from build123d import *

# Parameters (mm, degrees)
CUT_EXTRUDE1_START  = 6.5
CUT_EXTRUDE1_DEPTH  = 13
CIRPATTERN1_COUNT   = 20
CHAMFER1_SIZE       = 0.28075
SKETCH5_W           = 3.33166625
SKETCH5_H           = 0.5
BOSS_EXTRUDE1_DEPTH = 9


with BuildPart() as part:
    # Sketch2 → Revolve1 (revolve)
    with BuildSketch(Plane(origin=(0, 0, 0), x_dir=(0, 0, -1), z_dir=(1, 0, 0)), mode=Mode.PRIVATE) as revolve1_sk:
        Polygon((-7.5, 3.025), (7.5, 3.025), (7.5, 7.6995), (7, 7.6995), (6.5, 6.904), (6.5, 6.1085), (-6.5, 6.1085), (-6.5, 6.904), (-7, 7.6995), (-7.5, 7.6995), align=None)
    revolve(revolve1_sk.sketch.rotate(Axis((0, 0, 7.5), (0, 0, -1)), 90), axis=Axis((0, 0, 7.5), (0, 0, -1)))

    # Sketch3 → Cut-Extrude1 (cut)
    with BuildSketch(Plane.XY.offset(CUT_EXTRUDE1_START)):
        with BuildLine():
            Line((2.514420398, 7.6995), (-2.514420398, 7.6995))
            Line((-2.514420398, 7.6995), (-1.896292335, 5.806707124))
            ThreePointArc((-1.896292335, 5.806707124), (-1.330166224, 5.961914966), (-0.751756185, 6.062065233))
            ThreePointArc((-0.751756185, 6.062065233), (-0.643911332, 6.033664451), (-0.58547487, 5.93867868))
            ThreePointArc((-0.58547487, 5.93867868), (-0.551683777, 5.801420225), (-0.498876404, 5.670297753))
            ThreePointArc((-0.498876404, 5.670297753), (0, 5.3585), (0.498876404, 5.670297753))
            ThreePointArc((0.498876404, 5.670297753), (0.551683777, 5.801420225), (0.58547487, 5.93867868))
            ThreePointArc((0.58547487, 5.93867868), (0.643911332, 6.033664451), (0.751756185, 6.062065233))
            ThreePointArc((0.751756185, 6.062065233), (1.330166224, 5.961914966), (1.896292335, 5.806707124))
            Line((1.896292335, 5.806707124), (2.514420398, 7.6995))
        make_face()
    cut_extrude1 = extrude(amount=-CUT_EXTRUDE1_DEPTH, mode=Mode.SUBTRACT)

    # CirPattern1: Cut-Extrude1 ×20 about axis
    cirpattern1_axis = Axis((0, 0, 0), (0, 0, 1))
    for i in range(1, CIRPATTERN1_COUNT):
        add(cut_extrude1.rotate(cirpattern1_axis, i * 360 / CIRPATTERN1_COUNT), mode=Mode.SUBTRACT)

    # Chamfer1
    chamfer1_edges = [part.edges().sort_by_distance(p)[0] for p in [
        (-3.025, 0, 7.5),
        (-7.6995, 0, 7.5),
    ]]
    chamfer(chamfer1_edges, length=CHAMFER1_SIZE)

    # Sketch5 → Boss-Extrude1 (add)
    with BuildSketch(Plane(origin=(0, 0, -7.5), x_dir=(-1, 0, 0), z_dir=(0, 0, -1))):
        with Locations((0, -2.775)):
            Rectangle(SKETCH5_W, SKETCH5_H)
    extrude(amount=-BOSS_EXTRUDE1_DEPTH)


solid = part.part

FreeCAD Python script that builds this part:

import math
import FreeCAD as App
import Part
import Sketcher
from FreeCAD import Vector


def edges_at(feature, points):
    """Names of the edges that pass closest to the given points."""
    edges = feature.Shape.Edges
    near = lambda p: min(range(len(edges)), key=lambda i: edges[i].distToShape(Part.Vertex(*p))[0])
    return sorted({f"Edge{near(p) + 1}" for p in points})


def add_polygon(sketch, points):
    """Adds a closed chain of lines whose ends are joined by coincident constraints."""
    first, n = sketch.GeometryCount, len(points)
    for a, b in zip(points, points[1:] + points[:1]):
        sketch.addGeometry(Part.LineSegment(App.Vector(*a, 0), App.Vector(*b, 0)), False)
    for i in range(n):
        sketch.addConstraint(Sketcher.Constraint("Coincident", first + i, 2, first + (i + 1) % n, 1))

doc = App.newDocument("Part")
body = doc.addObject("PartDesign::Body", "Body")

# Sketch on YZ plane
sketch1 = body.newObject("Sketcher::SketchObject", "Sketch")
sketch1.AttachmentSupport = (doc.getObject("YZ_Plane"), [""])
sketch1.MapMode = "FlatFace"
add_polygon(sketch1, [(3.025, 7.5), (3.025, -7.5), (7.6995, -7.5), (7.6995, -7), (6.904, -6.5), (6.1085, -6.5), (6.1085, 6.5), (6.904, 6.5), (7.6995, 7), (7.6995, 7.5)])  # lines 0-9
sketch1.addConstraint(Sketcher.Constraint("Vertical", 0))
sketch1.addConstraint(Sketcher.Constraint("Horizontal", 1))
sketch1.addConstraint(Sketcher.Constraint("Vertical", 2))
sketch1.addConstraint(Sketcher.Constraint("Horizontal", 4))
sketch1.addConstraint(Sketcher.Constraint("Vertical", 5))
sketch1.addConstraint(Sketcher.Constraint("Horizontal", 6))
sketch1.addConstraint(Sketcher.Constraint("Vertical", 8))
sketch1.addConstraint(Sketcher.Constraint("Horizontal", 9))
sketch1.addConstraint(Sketcher.Constraint("Symmetric", 3, 2, 6, 2, -1))
sketch1.addConstraint(Sketcher.Constraint("Symmetric", 2, 2, 7, 2, -1))
sketch1.addConstraint(Sketcher.Constraint("Equal", 2, 8))
sketch1.addConstraint(Sketcher.Constraint("DistanceY", 0, 2, 0, 1, 15.0))
sketch1.addConstraint(Sketcher.Constraint("DistanceY", 5, 1, 5, 2, 13.0))
sketch1.addConstraint(Sketcher.Constraint("DistanceY", 2, 1, 2, 2, 0.5))
sketch1.addConstraint(Sketcher.Constraint("DistanceX", 1, 1, 1, 2, 4.6745))
sketch1.addConstraint(Sketcher.Constraint("DistanceX", 4, 2, 4, 1, 0.7955))
sketch1.addConstraint(Sketcher.Constraint("DistanceX", -1, 1, 0, 2, 3.025))
sketch1.addConstraint(Sketcher.Constraint("DistanceX", -1, 1, 3, 2, 6.904))
revolution = body.newObject("PartDesign::Revolution", "Revolution")
revolution.Profile = sketch1
revolution.ReferenceAxis = (sketch1, ["V_Axis"])
revolution.Angle = 360

# Sketch on XY plane
sketch2 = body.newObject("Sketcher::SketchObject", "Sketch001")
sketch2.AttachmentSupport = (doc.getObject("XY_Plane"), [""])
sketch2.MapMode = "FlatFace"
sketch2.AttachmentOffset = App.Placement(Vector(0, 0, 6.5), App.Rotation())
sketch2.addGeometry(Part.LineSegment(Vector(2.51442, 7.6995, 0), Vector(-2.51442, 7.6995, 0)), False)
sketch2.addGeometry(Part.LineSegment(Vector(-2.51442, 7.6995, 0), Vector(-1.896292, 5.806707, 0)), False)
sketch2.addGeometry(Part.ArcOfCircle(Part.Circle(Vector(0, 0, 0), Vector(0, 0, 1), 6.1085), math.radians(97.069155), math.radians(108.085449)), False)
sketch2.addGeometry(Part.ArcOfCircle(Part.Circle(Vector(-0.733296, 5.913205, 0), Vector(0, 0, 1), 0.15), math.radians(9.77743), math.radians(97.069154)), False)
sketch2.addGeometry(Part.ArcOfCircle(Part.Circle(Vector(0.4, 6.1085, 0), Vector(0, 0, 1), 1), math.radians(-170.22257), math.radians(-154.010766)), False)
sketch2.addGeometry(Part.ArcOfCircle(Part.Circle(Vector(0, 5.9135, 0), Vector(0, 0, 1), 0.555), math.radians(-154.010767), math.radians(-25.989233)), False)
sketch2.addGeometry(Part.ArcOfCircle(Part.Circle(Vector(-0.4, 6.1085, 0), Vector(0, 0, 1), 1), math.radians(-25.989234), math.radians(-9.77743)), False)
sketch2.addGeometry(Part.ArcOfCircle(Part.Circle(Vector(0.733296, 5.913205, 0), Vector(0, 0, 1), 0.15), math.radians(82.930846), math.radians(170.22257)), False)
sketch2.addGeometry(Part.ArcOfCircle(Part.Circle(Vector(0, 0, 0), Vector(0, 0, 1), 6.1085), math.radians(71.914551), math.radians(82.930845)), False)
sketch2.addGeometry(Part.LineSegment(Vector(1.896292, 5.806707, 0), Vector(2.51442, 7.6995, 0)), False)
sketch2.addConstraint(Sketcher.Constraint("Coincident", 0, 2, 1, 1))
sketch2.addConstraint(Sketcher.Constraint("Coincident", 1, 2, 2, 2))
sketch2.addConstraint(Sketcher.Constraint("Tangent", 2, 1, 3, 2))
sketch2.addConstraint(Sketcher.Constraint("Tangent", 3, 1, 4, 1))
sketch2.addConstraint(Sketcher.Constraint("Tangent", 4, 2, 5, 1))
sketch2.addConstraint(Sketcher.Constraint("Tangent", 5, 2, 6, 1))
sketch2.addConstraint(Sketcher.Constraint("Tangent", 6, 2, 7, 2))
sketch2.addConstraint(Sketcher.Constraint("Tangent", 7, 1, 8, 2))
sketch2.addConstraint(Sketcher.Constraint("Coincident", 8, 1, 9, 1))
sketch2.addConstraint(Sketcher.Constraint("Coincident", 9, 2, 0, 1))
sketch2.addConstraint(Sketcher.Constraint("Horizontal", 0))
sketch2.addConstraint(Sketcher.Constraint("Coincident", 2, 3, -1, 1))
sketch2.addConstraint(Sketcher.Constraint("Coincident", 8, 3, -1, 1))
sketch2.addConstraint(Sketcher.Constraint("Equal", 4, 6))
sketch2.addConstraint(Sketcher.Constraint("Equal", 3, 7))
sketch2.addConstraint(Sketcher.Constraint("Equal", 2, 8))
sketch2.addConstraint(Sketcher.Constraint("Symmetric", 4, 3, 6, 3, -2))
sketch2.addConstraint(Sketcher.Constraint("Horizontal", 1, 2, 8, 1))
sketch2.addConstraint(Sketcher.Constraint("Equal", 1, 9))
sketch2.addConstraint(Sketcher.Constraint("Radius", 4, 1.0))
sketch2.addConstraint(Sketcher.Constraint("Radius", 3, 0.15))
sketch2.addConstraint(Sketcher.Constraint("Radius", 5, 0.555))
sketch2.addConstraint(Sketcher.Constraint("DistanceX", -1, 1, 4, 3, 0.4))
sketch2.addConstraint(Sketcher.Constraint("Radius", 2, 6.1085))
sketch2.addConstraint(Sketcher.Constraint("DistanceY", 6, 3, 0, 2, 1.591))
sketch2.addConstraint(Sketcher.Constraint("DistanceX", 0, 2, 0, 1, 5.028841))
sketch2.addConstraint(Sketcher.Constraint("DistanceY", -1, 1, 4, 3, 6.1085))
sketch2.addConstraint(Sketcher.Constraint("DistanceY", 1, 2, 3, 3, 0.106498))
pocket1 = body.newObject("PartDesign::Pocket", "Pocket")
pocket1.Profile = sketch2
pocket1.Length = 13
doc.recompute()

polarpattern = body.newObject("PartDesign::PolarPattern", "PolarPattern")
polarpattern.Originals = [pocket1]
polarpattern.Axis = (doc.getObject("Z_Axis"), [""])
polarpattern.Angle = 360
polarpattern.Occurrences = 20
body.Tip = polarpattern
doc.recompute()

chamfer = body.newObject("PartDesign::Chamfer", "Chamfer")
chamfer.Base = (polarpattern, edges_at(polarpattern, [(-3.025, 0, 7.5), (-7.699, 0, 7.5)]))
chamfer.Size = 0.28075

# Sketch on XY plane
sketch3 = body.newObject("Sketcher::SketchObject", "Sketch002")
sketch3.AttachmentSupport = (doc.getObject("XY_Plane"), [""])
sketch3.MapMode = "FlatFace"
sketch3.AttachmentOffset = App.Placement(Vector(0, 0, -7.5), App.Rotation())
add_polygon(sketch3, [(1.665833, -2.525), (1.665833, -3.025), (-1.665833, -3.025), (-1.665833, -2.525)])  # lines 0-3
sketch3.addConstraint(Sketcher.Constraint("Vertical", 0))
sketch3.addConstraint(Sketcher.Constraint("Horizontal", 1))
sketch3.addConstraint(Sketcher.Constraint("Vertical", 2))
sketch3.addConstraint(Sketcher.Constraint("Horizontal", 3))
sketch3.addConstraint(Sketcher.Constraint("DistanceY", 0, 2, 0, 1, 0.5))
sketch3.addConstraint(Sketcher.Constraint("DistanceY", 0, 2, -1, 1, 3.025))
sketch3.addConstraint(Sketcher.Constraint("DistanceX", 1, 2, 1, 1, 3.331666))
sketch3.addConstraint(Sketcher.Constraint("DistanceX", -1, 1, 0, 2, 1.665833))
pad1 = body.newObject("PartDesign::Pad", "Pad")
pad1.Profile = sketch3
pad1.Length = 9

doc.recompute()
